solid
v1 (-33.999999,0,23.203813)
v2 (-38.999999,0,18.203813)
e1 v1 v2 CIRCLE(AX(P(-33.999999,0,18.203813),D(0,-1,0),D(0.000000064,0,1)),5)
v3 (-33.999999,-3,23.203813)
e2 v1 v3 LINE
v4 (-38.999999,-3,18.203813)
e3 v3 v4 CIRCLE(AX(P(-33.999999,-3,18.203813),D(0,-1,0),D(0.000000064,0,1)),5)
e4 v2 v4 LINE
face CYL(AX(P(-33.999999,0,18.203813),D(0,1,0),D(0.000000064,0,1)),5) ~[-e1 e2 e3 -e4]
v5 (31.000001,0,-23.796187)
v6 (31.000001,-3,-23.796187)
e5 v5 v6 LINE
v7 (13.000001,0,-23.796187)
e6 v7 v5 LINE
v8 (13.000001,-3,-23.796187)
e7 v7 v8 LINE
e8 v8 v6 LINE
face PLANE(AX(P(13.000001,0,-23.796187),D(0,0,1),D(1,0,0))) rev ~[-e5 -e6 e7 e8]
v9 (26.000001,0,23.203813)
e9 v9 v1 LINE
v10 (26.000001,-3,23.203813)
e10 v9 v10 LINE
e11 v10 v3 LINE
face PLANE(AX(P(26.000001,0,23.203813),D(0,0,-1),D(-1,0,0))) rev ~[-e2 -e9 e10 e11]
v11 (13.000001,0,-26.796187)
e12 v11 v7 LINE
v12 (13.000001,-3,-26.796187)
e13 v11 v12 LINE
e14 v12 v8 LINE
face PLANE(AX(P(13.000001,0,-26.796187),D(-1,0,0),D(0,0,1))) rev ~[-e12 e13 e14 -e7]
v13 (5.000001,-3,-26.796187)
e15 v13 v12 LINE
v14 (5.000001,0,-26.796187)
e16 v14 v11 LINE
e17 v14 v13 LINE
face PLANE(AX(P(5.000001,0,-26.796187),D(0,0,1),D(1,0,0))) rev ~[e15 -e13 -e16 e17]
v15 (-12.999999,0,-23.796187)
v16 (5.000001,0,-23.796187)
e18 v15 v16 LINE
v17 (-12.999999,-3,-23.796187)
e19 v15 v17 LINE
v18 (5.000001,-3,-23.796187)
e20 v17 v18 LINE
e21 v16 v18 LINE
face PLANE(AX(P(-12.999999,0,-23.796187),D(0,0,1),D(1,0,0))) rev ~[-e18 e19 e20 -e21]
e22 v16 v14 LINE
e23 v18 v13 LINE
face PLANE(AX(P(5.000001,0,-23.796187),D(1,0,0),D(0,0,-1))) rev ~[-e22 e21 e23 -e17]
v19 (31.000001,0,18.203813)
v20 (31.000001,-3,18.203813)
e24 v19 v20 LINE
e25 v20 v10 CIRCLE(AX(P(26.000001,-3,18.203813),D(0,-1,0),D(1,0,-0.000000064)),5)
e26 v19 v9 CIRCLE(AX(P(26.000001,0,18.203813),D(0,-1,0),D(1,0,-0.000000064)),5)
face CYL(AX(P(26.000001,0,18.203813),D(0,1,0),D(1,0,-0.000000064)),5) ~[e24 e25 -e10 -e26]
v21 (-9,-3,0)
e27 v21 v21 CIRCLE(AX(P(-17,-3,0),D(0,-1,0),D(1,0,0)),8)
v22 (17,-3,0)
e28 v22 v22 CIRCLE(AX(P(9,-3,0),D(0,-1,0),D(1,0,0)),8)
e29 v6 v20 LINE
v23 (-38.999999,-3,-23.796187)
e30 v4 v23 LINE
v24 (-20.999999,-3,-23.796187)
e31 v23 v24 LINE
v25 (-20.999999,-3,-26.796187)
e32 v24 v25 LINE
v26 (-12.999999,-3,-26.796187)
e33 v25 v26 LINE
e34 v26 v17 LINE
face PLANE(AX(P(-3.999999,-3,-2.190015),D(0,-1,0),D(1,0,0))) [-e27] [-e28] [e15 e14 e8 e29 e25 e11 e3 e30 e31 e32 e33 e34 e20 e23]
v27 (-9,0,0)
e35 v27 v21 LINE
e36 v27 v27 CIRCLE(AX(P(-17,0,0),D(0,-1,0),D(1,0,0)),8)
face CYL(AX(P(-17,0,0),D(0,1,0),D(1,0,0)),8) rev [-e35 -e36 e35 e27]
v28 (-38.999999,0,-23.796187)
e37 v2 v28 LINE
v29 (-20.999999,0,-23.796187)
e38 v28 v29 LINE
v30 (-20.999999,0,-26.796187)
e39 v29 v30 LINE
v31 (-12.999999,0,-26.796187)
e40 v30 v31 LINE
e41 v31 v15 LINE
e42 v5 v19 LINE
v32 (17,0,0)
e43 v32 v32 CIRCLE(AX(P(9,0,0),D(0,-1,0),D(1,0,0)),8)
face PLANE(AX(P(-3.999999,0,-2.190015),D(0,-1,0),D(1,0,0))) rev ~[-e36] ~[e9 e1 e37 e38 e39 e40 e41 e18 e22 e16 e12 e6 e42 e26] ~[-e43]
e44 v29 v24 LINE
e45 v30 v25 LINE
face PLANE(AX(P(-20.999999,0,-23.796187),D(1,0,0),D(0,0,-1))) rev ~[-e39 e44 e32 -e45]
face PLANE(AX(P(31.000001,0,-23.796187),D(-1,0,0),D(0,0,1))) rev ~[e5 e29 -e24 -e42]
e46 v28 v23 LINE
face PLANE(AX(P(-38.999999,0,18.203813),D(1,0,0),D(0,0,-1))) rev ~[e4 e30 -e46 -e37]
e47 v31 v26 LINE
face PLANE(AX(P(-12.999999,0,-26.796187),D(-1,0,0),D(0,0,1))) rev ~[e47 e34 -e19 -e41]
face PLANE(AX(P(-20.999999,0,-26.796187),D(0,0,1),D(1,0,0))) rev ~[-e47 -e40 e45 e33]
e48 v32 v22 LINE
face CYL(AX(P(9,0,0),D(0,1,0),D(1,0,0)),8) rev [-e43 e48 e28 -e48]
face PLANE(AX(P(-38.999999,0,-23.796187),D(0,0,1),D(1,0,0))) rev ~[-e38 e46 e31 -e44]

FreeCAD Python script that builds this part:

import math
import FreeCAD as App
import Part
import Sketcher

doc = App.newDocument("Part")
params = doc.addObject("Spreadsheet::Sheet", "Params")
for row, (alias, value) in enumerate([
    ("sketch1_diameter", "16 mm"),
    ("sketch1_radius", "5 mm"),
    ("sketch1_width", "60 mm"),
    ("sketch1_width2", "18 mm"),
    ("sketch1_height", "42 mm"),
    ("pad1_length", "3 mm"),
    ("sketch2_diameter", "16 mm"),
    ("sketch2_radius", "5 mm"),
    ("sketch2_width", "60 mm"),
    ("sketch2_width2", "18 mm"),
    ("sketch2_height", "42 mm"),
    ("pad2_length", "25 mm"),
], start=1):
    params.set(f"A{row}", alias)
    params.set(f"B{row}", "=" + value)
    params.setAlias(f"B{row}", alias)

body = doc.addObject("PartDesign::Body", "Body")

# Sketch on XZ plane
sketch1 = doc.addObject("Sketcher::SketchObject", "Sketch")
body.addObject(sketch1)
sketch1.AttachmentSupport = (doc.XZ_Plane, [""])
sketch1.MapMode = "FlatFace"
sketch1.addGeometry(Part.LineSegment(App.Vector(26, 23.2, 0), App.Vector(-34, 23.2, 0)), False)
sketch1.addGeometry(Part.ArcOfCircle(Part.Circle(App.Vector(-34, 18.2, 0), App.Vector(0, 0, 1), 5), math.radians(90), math.radians(180)), False)
sketch1.addGeometry(Part.LineSegment(App.Vector(-39, 18.2, 0), App.Vector(-39, -23.8, 0)), False)
sketch1.addGeometry(Part.LineSegment(App.Vector(-39, -23.8, 0), App.Vector(-21, -23.8, 0)), False)
sketch1.addGeometry(Part.LineSegment(App.Vector(-21, -23.8, 0), App.Vector(-21, -26.8, 0)), False)
sketch1.addGeometry(Part.LineSegment(App.Vector(-21, -26.8, 0), App.Vector(-13, -26.8, 0)), False)
sketch1.addGeometry(Part.LineSegment(App.Vector(-13, -26.8, 0), App.Vector(-13, -23.8, 0)), False)
sketch1.addGeometry(Part.LineSegment(App.Vector(-13, -23.8, 0), App.Vector(5, -23.8, 0)), False)
sketch1.addGeometry(Part.LineSegment(App.Vector(5, -23.8, 0), App.Vector(5, -26.8, 0)), False)
sketch1.addGeometry(Part.LineSegment(App.Vector(5, -26.8, 0), App.Vector(13, -26.8, 0)), False)
sketch1.addGeometry(Part.LineSegment(App.Vector(13, -26.8, 0), App.Vector(13, -23.8, 0)), False)
sketch1.addGeometry(Part.LineSegment(App.Vector(13, -23.8, 0), App.Vector(31, -23.8, 0)), False)
sketch1.addGeometry(Part.LineSegment(App.Vector(31, -23.8, 0), App.Vector(31, 18.2, 0)), False)
sketch1.addGeometry(Part.ArcOfCircle(Part.Circle(App.Vector(26, 18.2, 0), App.Vector(0, 0, 1), 5), math.radians(0), math.radians(90)), False)
sketch1.addGeometry(Part.Circle(App.Vector(-17, 0, 0), App.Vector(0, 0, 1), 8), False)
sketch1.addGeometry(Part.Circle(App.Vector(9, 0, 0), App.Vector(0, 0, 1), 8), False)
sketch1.addConstraint(Sketcher.Constraint("Tangent", 0, 2, 1, 1))
sketch1.addConstraint(Sketcher.Constraint("Tangent", 1, 2, 2, 1))
sketch1.addConstraint(Sketcher.Constraint("Coincident", 2, 2, 3, 1))
sketch1.addConstraint(Sketcher.Constraint("Coincident", 3, 2, 4, 1))
sketch1.addConstraint(Sketcher.Constraint("Coincident", 4, 2, 5, 1))
sketch1.addConstraint(Sketcher.Constraint("Coincident", 5, 2, 6, 1))
sketch1.addConstraint(Sketcher.Constraint("Coincident", 6, 2, 7, 1))
sketch1.addConstraint(Sketcher.Constraint("Coincident", 7, 2, 8, 1))
sketch1.addConstraint(Sketcher.Constraint("Coincident", 8, 2, 9, 1))
sketch1.addConstraint(Sketcher.Constraint("Coincident", 9, 2, 10, 1))
sketch1.addConstraint(Sketcher.Constraint("Coincident", 10, 2, 11, 1))
sketch1.addConstraint(Sketcher.Constraint("Coincident", 11, 2, 12, 1))
sketch1.addConstraint(Sketcher.Constraint("Tangent", 12, 2, 13, 1))
sketch1.addConstraint(Sketcher.Constraint("Tangent", 13, 2, 0, 1))
sketch1.addConstraint(Sketcher.Constraint("Horizontal", 0))
sketch1.addConstraint(Sketcher.Constraint("Vertical", 2))
sketch1.addConstraint(Sketcher.Constraint("Horizontal", 3))
sketch1.addConstraint(Sketcher.Constraint("Vertical", 4))
sketch1.addConstraint(Sketcher.Constraint("Horizontal", 5))
sketch1.addConstraint(Sketcher.Constraint("Vertical", 6))
sketch1.addConstraint(Sketcher.Constraint("Horizontal", 7))
sketch1.addConstraint(Sketcher.Constraint("Vertical", 8))
sketch1.addConstraint(Sketcher.Constraint("Horizontal", 9))
sketch1.addConstraint(Sketcher.Constraint("Vertical", 10))
sketch1.addConstraint(Sketcher.Constraint("Horizontal", 11))
sketch1.addConstraint(Sketcher.Constraint("Vertical", 12))
sketch1.addConstraint(Sketcher.Constraint("Equal", 1, 13))
sketch1.addConstraint(Sketcher.Constraint("Equal", 14, 15))
sketch1.addConstraint(Sketcher.Constraint("Symmetric", 5, 2, 9, 2, -2))
sketch1.addConstraint(Sketcher.Constraint("PointOnObject", 14, 3, -1))
sketch1.addConstraint(Sketcher.Constraint("PointOnObject", 15, 3, -1))
sketch1.addConstraint(Sketcher.Constraint("Horizontal", 3, 2, 6, 2))
sketch1.addConstraint(Sketcher.Constraint("Horizontal", 7, 2, 10, 2))
sketch1.addConstraint(Sketcher.Constraint("Equal", 3, 7))
sketch1.addConstraint(Sketcher.Constraint("Equal", 5, 9))
sketch1.addConstraint(Sketcher.Constraint("Equal", 7, 11))
sketch1.addConstraint(Sketcher.Constraint("Diameter", 14, 16.0))
sketch1.addConstraint(Sketcher.Constraint("Radius", 1, 5.0))
sketch1.addConstraint(Sketcher.Constraint("DistanceX", 0, 2, 0, 1, 60.0))
sketch1.addConstraint(Sketcher.Constraint("DistanceX", 3, 1, 3, 2, 18.0))
sketch1.addConstraint(Sketcher.Constraint("DistanceY", 2, 2, 2, 1, 42.0))
sketch1.addConstraint(Sketcher.Constraint("DistanceY", 4, 2, 4, 1, 3.0))
sketch1.addConstraint(Sketcher.Constraint("DistanceX", 14, 3, -1, 1, 17.0))
sketch1.addConstraint(Sketcher.Constraint("DistanceX", -1, 1, 15, 3, 9.0))
sketch1.addConstraint(Sketcher.Constraint("DistanceY", -1, 1, 1, 3, 18.203813))
sketch1.setExpression("Constraints[36]", "Params.sketch1_diameter")
sketch1.setExpression("Constraints[37]", "Params.sketch1_radius")
sketch1.setExpression("Constraints[38]", "Params.sketch1_width")
sketch1.setExpression("Constraints[39]", "Params.sketch1_width2")
sketch1.setExpression("Constraints[40]", "Params.sketch1_height")
pad1 = doc.addObject("PartDesign::Pad", "Pad")
body.addObject(pad1)
pad1.Profile = sketch1
pad1.setExpression("Length", "Params.pad1_length")
body2 = doc.addObject("PartDesign::Body", "Body001")

# Sketch on XZ plane
sketch2 = doc.addObject("Sketcher::SketchObject", "Sketch001")
body2.addObject(sketch2)
sketch2.AttachmentSupport = (doc.getObject("XZ_Plane001"), [""])
sketch2.MapMode = "FlatFace"
sketch2.addGeometry(Part.LineSegment(App.Vector(26, 23.2, 0), App.Vector(-34, 23.2, 0)), False)
sketch2.addGeometry(Part.ArcOfCircle(Part.Circle(App.Vector(-34, 18.2, 0), App.Vector(0, 0, 1), 5), math.radians(90), math.radians(180)), False)
sketch2.addGeometry(Part.LineSegment(App.Vector(-39, 18.2, 0), App.Vector(-39, -23.8, 0)), False)
sketch2.addGeometry(Part.LineSegment(App.Vector(-39, -23.8, 0), App.Vector(-21, -23.8, 0)), False)
sketch2.addGeometry(Part.LineSegment(App.Vector(-21, -23.8, 0), App.Vector(-21, -26.8, 0)), False)
sketch2.addGeometry(Part.LineSegment(App.Vector(-21, -26.8, 0), App.Vector(-13, -26.8, 0)), False)
sketch2.addGeometry(Part.LineSegment(App.Vector(-13, -26.8, 0), App.Vector(-13, -23.8, 0)), False)
sketch2.addGeometry(Part.LineSegment(App.Vector(-13, -23.8, 0), App.Vector(5, -23.8, 0)), False)
sketch2.addGeometry(Part.LineSegment(App.Vector(5, -23.8, 0), App.Vector(5, -26.8, 0)), False)
sketch2.addGeometry(Part.LineSegment(App.Vector(5, -26.8, 0), App.Vector(13, -26.8, 0)), False)
sketch2.addGeometry(Part.LineSegment(App.Vector(13, -26.8, 0), App.Vector(13, -23.8, 0)), False)
sketch2.addGeometry(Part.LineSegment(App.Vector(13, -23.8, 0), App.Vector(31, -23.8, 0)), False)
sketch2.addGeometry(Part.LineSegment(App.Vector(31, -23.8, 0), App.Vector(31, 18.2, 0)), False)
sketch2.addGeometry(Part.ArcOfCircle(Part.Circle(App.Vector(26, 18.2, 0), App.Vector(0, 0, 1), 5), math.radians(0), math.radians(90)), False)
sketch2.addGeometry(Part.Circle(App.Vector(-17, 0, 0), App.Vector(0, 0, 1), 8), False)
sketch2.addGeometry(Part.Circle(App.Vector(9, 0, 0), App.Vector(0, 0, 1), 8), False)
sketch2.addConstraint(Sketcher.Constraint("Tangent", 0, 2, 1, 1))
sketch2.addConstraint(Sketcher.Constraint("Tangent", 1, 2, 2, 1))
sketch2.addConstraint(Sketcher.Constraint("Coincident", 2, 2, 3, 1))
sketch2.addConstraint(Sketcher.Constraint("Coincident", 3, 2, 4, 1))
sketch2.addConstraint(Sketcher.Constraint("Coincident", 4, 2, 5, 1))
sketch2.addConstraint(Sketcher.Constraint("Coincident", 5, 2, 6, 1))
sketch2.addConstraint(Sketcher.Constraint("Coincident", 6, 2, 7, 1))
sketch2.addConstraint(Sketcher.Constraint("Coincident", 7, 2, 8, 1))
sketch2.addConstraint(Sketcher.Constraint("Coincident", 8, 2, 9, 1))
sketch2.addConstraint(Sketcher.Constraint("Coincident", 9, 2, 10, 1))
sketch2.addConstraint(Sketcher.Constraint("Coincident", 10, 2, 11, 1))
sketch2.addConstraint(Sketcher.Constraint("Coincident", 11, 2, 12, 1))
sketch2.addConstraint(Sketcher.Constraint("Tangent", 12, 2, 13, 1))
sketch2.addConstraint(Sketcher.Constraint("Tangent", 13, 2, 0, 1))
sketch2.addConstraint(Sketcher.Constraint("Horizontal", 0))
sketch2.addConstraint(Sketcher.Constraint("Vertical", 2))
sketch2.addConstraint(Sketcher.Constraint("Horizontal", 3))
sketch2.addConstraint(Sketcher.Constraint("Vertical", 4))
sketch2.addConstraint(Sketcher.Constraint("Horizontal", 5))
sketch2.addConstraint(Sketcher.Constraint("Vertical", 6))
sketch2.addConstraint(Sketcher.Constraint("Horizontal", 7))
sketch2.addConstraint(Sketcher.Constraint("Vertical", 8))
sketch2.addConstraint(Sketcher.Constraint("Horizontal", 9))
sketch2.addConstraint(Sketcher.Constraint("Vertical", 10))
sketch2.addConstraint(Sketcher.Constraint("Horizontal", 11))
sketch2.addConstraint(Sketcher.Constraint("Vertical", 12))
sketch2.addConstraint(Sketcher.Constraint("Equal", 1, 13))
sketch2.addConstraint(Sketcher.Constraint("Equal", 14, 15))
sketch2.addConstraint(Sketcher.Constraint("Symmetric", 5, 2, 9, 2, -2))
sketch2.addConstraint(Sketcher.Constraint("PointOnObject", 14, 3, -1))
sketch2.addConstraint(Sketcher.Constraint("PointOnObject", 15, 3, -1))
sketch2.addConstraint(Sketcher.Constraint("Horizontal", 3, 2, 6, 2))
sketch2.addConstraint(Sketcher.Constraint("Horizontal", 7, 2, 10, 2))
sketch2.addConstraint(Sketcher.Constraint("Equal", 3, 7))
sketch2.addConstraint(Sketcher.Constraint("Equal", 5, 9))
sketch2.addConstraint(Sketcher.Constraint("Equal", 7, 11))
sketch2.addConstraint(Sketcher.Constraint("Diameter", 14, 16.0))
sketch2.addConstraint(Sketcher.Constraint("Radius", 1, 5.0))
sketch2.addConstraint(Sketcher.Constraint("DistanceX", 0, 2, 0, 1, 60.0))
sketch2.addConstraint(Sketcher.Constraint("DistanceX", 3, 1, 3, 2, 18.0))
sketch2.addConstraint(Sketcher.Constraint("DistanceY", 2, 2, 2, 1, 42.0))
sketch2.addConstraint(Sketcher.Constraint("DistanceY", 4, 2, 4, 1, 3.0))
sketch2.addConstraint(Sketcher.Constraint("DistanceX", 14, 3, -1, 1, 17.0))
sketch2.addConstraint(Sketcher.Constraint("DistanceX", -1, 1, 15, 3, 9.0))
sketch2.addConstraint(Sketcher.Constraint("DistanceY", -1, 1, 1, 3, 18.203813))
sketch2.setExpression("Constraints[36]", "Params.sketch2_diameter")
sketch2.setExpression("Constraints[37]", "Params.sketch2_radius")
sketch2.setExpression("Constraints[38]", "Params.sketch2_width")
sketch2.setExpression("Constraints[39]", "Params.sketch2_width2")
sketch2.setExpression("Constraints[40]", "Params.sketch2_height")
pad2 = doc.addObject("PartDesign::Pad", "Pad001")
body2.addObject(pad2)
pad2.Profile = sketch2
pad2.setExpression("Length", "Params.pad2_length")
body2.Visibility = False

doc.recompute()
